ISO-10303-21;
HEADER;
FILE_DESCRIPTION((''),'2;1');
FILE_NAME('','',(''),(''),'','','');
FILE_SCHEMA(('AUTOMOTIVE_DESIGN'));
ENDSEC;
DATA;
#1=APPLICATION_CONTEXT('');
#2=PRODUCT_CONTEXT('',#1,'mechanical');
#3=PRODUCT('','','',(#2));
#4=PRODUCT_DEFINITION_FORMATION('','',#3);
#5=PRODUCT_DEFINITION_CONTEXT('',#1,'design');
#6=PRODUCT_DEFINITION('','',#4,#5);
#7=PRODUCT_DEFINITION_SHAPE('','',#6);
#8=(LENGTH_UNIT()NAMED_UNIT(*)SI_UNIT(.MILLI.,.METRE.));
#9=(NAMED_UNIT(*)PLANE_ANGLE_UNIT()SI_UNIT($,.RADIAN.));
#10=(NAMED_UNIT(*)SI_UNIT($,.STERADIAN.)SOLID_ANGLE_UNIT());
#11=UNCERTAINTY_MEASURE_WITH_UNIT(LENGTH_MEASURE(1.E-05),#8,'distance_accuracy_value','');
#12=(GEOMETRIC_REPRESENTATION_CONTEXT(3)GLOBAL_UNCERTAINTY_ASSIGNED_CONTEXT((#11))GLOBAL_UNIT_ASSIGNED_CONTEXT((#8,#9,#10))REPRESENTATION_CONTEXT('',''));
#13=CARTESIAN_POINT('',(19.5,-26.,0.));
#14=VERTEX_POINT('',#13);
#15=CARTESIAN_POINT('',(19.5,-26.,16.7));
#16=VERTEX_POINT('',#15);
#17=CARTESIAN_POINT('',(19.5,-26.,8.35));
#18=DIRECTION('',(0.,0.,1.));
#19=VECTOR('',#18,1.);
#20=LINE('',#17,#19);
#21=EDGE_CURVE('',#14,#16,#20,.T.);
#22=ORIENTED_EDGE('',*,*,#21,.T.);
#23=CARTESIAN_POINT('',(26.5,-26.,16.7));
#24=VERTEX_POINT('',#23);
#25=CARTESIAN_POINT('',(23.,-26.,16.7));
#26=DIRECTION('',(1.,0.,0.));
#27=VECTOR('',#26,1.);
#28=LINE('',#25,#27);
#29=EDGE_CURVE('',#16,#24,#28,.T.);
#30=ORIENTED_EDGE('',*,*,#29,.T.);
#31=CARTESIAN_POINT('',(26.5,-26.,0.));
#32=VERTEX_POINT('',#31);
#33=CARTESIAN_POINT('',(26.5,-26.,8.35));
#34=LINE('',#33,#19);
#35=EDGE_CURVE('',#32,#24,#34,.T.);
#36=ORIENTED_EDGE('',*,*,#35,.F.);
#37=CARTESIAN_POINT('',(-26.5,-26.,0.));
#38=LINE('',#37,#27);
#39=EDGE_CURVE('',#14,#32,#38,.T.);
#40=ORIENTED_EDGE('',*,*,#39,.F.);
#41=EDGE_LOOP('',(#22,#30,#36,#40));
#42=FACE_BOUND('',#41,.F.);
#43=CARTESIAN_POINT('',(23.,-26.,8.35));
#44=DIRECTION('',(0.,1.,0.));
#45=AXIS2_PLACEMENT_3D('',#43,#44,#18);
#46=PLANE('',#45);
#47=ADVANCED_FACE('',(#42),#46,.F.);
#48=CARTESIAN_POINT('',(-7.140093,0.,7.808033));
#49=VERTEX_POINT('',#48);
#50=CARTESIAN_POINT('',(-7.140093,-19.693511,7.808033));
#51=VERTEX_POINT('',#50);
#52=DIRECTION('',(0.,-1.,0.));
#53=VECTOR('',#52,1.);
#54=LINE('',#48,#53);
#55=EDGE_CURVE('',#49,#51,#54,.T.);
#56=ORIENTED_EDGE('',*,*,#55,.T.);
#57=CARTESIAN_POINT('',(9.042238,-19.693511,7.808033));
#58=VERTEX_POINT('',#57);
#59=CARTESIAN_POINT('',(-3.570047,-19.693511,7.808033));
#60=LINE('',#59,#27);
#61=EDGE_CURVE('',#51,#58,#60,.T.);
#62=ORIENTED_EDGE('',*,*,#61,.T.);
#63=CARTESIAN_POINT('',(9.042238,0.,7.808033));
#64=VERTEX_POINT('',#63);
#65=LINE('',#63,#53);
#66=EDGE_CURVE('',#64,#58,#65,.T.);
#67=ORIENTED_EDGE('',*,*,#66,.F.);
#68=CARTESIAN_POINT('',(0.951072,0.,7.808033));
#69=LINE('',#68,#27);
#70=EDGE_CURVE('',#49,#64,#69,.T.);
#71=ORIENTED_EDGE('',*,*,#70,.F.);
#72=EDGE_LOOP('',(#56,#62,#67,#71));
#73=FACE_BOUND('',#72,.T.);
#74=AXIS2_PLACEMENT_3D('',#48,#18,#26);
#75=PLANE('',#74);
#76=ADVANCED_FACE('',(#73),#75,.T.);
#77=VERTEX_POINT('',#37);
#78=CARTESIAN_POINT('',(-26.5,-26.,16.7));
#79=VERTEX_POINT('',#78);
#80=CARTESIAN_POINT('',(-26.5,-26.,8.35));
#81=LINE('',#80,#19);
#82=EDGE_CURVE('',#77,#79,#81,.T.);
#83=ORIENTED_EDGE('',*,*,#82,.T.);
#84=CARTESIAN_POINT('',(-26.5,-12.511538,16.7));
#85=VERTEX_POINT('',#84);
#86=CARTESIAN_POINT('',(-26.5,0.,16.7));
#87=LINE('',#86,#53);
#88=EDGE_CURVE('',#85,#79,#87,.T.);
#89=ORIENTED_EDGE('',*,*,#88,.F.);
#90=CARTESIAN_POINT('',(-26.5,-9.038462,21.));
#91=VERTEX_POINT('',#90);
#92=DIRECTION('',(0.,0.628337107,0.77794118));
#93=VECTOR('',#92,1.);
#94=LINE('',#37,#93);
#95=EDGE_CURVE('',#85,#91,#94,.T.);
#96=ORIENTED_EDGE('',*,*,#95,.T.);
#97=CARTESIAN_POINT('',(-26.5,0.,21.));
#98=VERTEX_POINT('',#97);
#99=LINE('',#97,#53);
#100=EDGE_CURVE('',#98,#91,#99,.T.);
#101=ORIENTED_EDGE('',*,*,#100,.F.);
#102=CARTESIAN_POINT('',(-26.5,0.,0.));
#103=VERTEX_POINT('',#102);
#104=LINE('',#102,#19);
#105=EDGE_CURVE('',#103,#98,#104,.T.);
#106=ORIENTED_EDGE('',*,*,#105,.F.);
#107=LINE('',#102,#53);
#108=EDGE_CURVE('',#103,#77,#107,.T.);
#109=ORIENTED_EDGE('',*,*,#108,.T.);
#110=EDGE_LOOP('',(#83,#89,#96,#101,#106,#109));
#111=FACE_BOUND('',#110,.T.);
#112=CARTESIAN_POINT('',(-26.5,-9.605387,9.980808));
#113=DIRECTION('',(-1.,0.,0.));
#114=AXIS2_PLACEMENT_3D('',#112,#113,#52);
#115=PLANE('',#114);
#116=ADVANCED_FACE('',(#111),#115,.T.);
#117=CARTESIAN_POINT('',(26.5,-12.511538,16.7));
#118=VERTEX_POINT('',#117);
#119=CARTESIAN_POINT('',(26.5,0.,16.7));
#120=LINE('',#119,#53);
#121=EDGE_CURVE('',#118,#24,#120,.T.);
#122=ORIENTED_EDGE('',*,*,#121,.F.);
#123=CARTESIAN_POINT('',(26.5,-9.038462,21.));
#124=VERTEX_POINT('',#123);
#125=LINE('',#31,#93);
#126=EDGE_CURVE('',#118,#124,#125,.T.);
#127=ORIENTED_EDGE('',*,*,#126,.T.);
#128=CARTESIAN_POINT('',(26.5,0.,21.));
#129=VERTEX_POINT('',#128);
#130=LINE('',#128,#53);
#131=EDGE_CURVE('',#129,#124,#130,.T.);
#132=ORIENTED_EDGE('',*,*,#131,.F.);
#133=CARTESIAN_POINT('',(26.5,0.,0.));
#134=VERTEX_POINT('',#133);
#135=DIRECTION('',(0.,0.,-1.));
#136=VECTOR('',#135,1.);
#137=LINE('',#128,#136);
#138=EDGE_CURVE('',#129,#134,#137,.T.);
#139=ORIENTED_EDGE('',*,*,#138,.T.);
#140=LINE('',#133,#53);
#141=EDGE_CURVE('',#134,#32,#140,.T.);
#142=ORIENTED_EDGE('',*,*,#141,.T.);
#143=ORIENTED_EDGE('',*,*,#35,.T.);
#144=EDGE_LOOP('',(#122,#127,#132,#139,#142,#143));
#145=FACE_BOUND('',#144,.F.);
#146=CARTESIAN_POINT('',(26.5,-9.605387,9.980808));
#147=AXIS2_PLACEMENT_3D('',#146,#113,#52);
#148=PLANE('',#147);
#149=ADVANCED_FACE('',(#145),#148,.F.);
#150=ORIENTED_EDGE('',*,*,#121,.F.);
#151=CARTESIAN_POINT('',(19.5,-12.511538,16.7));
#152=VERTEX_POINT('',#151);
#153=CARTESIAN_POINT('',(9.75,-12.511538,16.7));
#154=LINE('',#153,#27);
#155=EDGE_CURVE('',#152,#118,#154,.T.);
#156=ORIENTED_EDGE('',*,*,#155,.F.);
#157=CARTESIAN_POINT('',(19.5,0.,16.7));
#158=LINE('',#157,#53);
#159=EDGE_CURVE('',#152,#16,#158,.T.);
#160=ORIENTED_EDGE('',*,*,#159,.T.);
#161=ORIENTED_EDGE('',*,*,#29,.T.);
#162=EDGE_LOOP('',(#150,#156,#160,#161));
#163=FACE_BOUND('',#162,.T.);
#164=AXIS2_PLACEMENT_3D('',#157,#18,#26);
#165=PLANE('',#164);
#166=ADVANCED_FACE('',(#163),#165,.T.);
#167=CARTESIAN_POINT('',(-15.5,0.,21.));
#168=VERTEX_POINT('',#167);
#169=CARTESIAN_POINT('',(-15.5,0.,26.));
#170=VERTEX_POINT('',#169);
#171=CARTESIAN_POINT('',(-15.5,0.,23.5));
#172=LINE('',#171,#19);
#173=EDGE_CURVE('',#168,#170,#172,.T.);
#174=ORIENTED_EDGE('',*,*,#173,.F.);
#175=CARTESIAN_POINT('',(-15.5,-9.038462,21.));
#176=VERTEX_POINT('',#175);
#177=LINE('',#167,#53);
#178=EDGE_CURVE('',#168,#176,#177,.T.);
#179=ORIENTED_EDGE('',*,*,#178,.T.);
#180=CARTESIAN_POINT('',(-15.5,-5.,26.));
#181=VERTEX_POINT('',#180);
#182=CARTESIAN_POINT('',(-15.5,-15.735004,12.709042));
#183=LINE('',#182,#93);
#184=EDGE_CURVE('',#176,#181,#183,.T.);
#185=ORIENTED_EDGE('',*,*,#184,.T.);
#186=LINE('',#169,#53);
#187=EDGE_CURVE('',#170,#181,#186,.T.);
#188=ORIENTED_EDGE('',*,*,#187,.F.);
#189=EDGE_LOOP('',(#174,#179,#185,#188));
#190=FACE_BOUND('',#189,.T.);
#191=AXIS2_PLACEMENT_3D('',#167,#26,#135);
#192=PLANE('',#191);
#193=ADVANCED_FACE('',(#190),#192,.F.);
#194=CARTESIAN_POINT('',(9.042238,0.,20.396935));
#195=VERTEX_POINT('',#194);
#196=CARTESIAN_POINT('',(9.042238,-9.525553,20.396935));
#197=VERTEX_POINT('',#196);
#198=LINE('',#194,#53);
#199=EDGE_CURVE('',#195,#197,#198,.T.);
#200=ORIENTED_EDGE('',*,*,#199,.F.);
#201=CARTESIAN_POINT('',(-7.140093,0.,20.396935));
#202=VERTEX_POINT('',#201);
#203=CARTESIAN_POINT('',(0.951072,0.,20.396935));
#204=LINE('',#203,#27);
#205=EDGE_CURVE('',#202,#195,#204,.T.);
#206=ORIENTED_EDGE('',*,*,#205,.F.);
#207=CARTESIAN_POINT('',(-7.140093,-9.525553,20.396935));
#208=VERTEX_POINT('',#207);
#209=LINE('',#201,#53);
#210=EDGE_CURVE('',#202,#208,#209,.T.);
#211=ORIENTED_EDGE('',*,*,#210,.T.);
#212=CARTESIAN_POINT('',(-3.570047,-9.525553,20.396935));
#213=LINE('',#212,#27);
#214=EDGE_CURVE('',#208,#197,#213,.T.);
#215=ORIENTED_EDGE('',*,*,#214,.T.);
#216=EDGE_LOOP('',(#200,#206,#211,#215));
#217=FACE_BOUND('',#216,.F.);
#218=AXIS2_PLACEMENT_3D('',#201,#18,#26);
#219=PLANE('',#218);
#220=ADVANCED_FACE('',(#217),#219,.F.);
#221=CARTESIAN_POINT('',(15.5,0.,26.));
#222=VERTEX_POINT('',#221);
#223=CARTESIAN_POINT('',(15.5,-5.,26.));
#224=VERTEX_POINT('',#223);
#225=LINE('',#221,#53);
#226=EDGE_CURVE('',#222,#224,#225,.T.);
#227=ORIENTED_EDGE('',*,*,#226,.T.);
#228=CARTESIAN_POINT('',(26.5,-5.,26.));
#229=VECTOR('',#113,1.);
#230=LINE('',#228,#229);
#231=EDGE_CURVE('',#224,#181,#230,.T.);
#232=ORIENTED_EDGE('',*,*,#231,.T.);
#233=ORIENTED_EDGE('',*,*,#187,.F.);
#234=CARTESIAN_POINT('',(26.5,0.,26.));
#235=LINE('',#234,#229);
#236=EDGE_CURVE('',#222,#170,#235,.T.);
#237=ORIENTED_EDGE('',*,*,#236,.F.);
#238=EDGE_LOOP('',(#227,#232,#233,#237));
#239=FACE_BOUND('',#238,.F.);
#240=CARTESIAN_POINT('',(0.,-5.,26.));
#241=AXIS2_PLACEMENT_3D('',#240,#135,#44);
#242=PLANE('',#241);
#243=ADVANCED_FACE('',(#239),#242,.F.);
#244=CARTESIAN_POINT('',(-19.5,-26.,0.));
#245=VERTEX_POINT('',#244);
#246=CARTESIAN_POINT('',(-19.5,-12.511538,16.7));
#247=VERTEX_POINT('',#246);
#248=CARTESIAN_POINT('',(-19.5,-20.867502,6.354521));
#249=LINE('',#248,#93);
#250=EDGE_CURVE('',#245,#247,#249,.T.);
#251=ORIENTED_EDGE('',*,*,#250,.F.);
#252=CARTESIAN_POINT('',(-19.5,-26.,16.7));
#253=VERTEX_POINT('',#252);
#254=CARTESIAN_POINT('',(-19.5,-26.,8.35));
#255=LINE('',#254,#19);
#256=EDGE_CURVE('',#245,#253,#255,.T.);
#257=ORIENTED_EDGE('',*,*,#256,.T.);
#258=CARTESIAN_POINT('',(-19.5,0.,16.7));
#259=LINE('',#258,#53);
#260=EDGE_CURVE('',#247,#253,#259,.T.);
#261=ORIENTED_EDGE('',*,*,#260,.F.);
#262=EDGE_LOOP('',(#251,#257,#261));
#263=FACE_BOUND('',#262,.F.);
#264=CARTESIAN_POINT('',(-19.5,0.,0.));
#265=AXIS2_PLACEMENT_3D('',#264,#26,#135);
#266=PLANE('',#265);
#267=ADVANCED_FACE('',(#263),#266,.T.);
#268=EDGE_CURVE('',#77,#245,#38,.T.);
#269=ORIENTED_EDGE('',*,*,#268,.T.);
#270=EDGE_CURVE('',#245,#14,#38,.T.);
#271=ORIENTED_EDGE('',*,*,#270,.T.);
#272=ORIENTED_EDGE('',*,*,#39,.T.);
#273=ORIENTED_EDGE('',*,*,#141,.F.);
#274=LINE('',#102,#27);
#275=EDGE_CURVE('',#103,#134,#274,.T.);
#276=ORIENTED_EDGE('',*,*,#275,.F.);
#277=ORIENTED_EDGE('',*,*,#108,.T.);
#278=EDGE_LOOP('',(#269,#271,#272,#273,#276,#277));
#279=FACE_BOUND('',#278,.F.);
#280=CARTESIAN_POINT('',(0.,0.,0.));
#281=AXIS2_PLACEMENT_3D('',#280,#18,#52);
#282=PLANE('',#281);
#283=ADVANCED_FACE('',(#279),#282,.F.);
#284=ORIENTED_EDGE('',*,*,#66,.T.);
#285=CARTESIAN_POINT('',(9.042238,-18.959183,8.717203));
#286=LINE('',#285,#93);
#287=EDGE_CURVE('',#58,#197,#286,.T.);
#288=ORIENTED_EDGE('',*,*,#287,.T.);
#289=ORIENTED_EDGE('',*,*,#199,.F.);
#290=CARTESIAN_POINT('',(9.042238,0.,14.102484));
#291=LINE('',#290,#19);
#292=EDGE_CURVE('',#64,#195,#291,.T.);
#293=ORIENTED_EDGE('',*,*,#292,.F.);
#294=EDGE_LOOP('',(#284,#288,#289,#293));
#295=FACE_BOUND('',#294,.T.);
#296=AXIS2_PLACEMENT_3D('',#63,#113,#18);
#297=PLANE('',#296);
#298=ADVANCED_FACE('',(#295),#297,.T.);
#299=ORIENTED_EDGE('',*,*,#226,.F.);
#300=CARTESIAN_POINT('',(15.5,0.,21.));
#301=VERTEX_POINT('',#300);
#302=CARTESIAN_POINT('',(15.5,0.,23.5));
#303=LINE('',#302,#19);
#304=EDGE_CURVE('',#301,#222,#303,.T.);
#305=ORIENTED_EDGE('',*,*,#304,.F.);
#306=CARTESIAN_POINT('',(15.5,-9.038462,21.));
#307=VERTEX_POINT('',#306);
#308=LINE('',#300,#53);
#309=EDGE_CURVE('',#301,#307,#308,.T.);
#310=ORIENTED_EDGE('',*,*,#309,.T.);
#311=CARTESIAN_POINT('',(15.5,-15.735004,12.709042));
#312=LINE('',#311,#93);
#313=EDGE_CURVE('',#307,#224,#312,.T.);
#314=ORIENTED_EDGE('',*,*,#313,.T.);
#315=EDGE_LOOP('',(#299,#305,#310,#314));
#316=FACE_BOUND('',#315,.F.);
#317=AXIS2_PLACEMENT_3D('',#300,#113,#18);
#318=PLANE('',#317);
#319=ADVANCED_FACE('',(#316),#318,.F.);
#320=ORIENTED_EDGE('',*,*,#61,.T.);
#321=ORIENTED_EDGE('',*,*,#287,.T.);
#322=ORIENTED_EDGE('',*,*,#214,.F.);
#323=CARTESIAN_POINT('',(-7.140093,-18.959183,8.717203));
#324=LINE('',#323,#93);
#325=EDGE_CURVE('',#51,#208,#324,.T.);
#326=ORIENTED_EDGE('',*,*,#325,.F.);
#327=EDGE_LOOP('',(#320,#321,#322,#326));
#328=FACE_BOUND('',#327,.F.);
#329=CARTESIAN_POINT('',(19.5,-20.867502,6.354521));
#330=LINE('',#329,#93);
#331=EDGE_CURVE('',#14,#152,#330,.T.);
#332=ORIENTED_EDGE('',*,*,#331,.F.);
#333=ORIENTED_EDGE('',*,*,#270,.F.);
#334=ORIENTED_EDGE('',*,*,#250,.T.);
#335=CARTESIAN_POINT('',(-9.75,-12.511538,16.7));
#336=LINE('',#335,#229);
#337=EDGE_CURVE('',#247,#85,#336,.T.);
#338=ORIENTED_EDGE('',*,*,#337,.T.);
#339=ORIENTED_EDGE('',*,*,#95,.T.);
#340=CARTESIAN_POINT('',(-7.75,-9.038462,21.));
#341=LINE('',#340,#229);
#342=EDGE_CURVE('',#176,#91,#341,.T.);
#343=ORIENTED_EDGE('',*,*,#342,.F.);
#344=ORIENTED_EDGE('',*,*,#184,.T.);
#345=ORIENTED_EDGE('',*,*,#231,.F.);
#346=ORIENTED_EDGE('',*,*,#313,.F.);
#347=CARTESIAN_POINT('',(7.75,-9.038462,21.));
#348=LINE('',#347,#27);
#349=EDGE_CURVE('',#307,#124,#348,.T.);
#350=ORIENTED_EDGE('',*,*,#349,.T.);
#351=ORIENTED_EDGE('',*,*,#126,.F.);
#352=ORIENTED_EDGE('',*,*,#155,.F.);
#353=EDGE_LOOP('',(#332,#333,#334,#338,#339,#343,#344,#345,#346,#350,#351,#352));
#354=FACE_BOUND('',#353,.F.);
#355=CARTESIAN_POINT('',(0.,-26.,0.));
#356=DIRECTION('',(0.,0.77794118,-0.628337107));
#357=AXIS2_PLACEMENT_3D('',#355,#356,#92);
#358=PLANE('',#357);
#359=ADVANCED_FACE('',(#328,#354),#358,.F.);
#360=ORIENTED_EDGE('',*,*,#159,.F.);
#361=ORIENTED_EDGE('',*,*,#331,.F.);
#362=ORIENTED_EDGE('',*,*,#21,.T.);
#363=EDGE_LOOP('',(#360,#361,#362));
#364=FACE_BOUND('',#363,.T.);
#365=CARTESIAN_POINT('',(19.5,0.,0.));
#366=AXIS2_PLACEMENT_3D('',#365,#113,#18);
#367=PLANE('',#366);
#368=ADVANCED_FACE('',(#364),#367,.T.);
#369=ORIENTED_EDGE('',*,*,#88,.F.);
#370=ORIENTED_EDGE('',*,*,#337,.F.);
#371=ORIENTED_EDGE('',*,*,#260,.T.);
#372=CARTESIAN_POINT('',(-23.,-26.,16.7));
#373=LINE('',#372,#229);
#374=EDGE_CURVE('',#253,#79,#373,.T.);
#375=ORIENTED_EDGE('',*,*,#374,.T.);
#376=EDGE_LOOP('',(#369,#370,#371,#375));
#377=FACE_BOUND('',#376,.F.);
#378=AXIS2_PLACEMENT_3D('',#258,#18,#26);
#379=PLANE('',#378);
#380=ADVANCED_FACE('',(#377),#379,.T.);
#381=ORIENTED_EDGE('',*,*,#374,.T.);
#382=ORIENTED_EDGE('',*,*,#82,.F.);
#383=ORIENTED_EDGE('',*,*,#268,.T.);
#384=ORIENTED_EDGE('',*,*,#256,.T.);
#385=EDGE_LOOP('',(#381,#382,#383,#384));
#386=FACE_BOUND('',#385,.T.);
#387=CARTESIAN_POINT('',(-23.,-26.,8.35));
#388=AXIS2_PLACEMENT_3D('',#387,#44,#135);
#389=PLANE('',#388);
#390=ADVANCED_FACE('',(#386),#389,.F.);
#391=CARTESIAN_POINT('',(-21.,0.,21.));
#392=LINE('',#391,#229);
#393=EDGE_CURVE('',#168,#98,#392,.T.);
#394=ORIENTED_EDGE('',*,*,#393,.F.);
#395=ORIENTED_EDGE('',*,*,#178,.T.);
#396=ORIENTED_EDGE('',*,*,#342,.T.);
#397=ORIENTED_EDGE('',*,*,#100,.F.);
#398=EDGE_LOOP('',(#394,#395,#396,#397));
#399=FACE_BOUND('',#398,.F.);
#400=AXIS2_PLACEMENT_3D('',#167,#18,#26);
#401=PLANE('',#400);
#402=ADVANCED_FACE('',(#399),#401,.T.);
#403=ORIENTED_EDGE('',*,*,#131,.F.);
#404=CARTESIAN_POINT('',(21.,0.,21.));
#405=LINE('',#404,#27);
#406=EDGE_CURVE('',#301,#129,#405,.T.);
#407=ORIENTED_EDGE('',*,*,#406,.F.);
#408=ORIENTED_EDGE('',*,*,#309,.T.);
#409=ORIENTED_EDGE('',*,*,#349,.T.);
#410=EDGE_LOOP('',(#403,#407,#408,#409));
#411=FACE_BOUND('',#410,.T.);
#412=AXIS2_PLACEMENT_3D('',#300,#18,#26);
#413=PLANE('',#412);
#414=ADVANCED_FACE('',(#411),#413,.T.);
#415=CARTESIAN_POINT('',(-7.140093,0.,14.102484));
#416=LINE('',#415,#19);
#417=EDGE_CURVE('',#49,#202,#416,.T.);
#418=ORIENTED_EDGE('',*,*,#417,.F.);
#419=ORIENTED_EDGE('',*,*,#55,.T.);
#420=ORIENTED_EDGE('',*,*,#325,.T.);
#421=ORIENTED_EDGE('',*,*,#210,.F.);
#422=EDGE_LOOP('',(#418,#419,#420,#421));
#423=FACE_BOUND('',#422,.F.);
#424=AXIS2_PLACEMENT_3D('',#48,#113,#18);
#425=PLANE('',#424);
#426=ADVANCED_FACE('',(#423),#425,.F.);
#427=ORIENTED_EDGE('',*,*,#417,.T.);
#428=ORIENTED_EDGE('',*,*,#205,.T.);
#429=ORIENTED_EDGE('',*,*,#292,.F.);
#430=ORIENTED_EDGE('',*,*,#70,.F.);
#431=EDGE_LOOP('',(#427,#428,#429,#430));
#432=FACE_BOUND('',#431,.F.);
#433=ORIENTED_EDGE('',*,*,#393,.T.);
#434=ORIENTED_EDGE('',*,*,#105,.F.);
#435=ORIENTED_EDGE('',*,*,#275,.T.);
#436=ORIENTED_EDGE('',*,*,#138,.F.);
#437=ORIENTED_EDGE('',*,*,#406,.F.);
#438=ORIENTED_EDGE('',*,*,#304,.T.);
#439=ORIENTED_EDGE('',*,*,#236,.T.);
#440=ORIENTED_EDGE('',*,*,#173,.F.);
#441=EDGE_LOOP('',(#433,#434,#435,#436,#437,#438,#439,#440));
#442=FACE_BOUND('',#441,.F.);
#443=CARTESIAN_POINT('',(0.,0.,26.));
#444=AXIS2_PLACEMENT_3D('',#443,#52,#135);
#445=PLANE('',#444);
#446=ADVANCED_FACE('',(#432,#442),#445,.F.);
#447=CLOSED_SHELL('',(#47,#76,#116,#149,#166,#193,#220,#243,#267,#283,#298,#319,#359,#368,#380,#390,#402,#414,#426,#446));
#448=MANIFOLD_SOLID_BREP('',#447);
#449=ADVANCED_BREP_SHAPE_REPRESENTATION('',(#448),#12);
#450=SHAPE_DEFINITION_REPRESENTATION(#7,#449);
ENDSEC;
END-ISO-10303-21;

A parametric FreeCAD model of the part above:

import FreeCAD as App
import Part
import Sketcher
Q = App.Units.Quantity

doc = App.newDocument("Part")
body = doc.addObject("PartDesign::Body", "Body")

# Sketch on YZ plane
sketch1 = body.newObject("Sketcher::SketchObject", "Sketch")
sketch1.AttachmentSupport = (doc.getObject("YZ_Plane"), [""])
sketch1.MapMode = "FlatFace"
sketch1.addGeometry([
    Part.LineSegment(App.Vector(-5, 26, 0), App.Vector(-26, 0, 0)),
    Part.LineSegment(App.Vector(-26, 0, 0), App.Vector(0, 0, 0)),
    Part.LineSegment(App.Vector(0, 0, 0), App.Vector(0, 26, 0)),
    Part.LineSegment(App.Vector(0, 26, 0), App.Vector(-5, 26, 0)),
], False)
sketch1.addConstraint([
    Sketcher.Constraint("Coincident", 0, 2, 1, 1),
    Sketcher.Constraint("Coincident", 1, 2, 2, 1),
    Sketcher.Constraint("Coincident", 2, 2, 3, 1),
    Sketcher.Constraint("Coincident", 3, 2, 0, 1),
    Sketcher.Constraint("Horizontal", 1),
    Sketcher.Constraint("Vertical", 2),
    Sketcher.Constraint("Horizontal", 3),
    Sketcher.Constraint("Coincident", 1, 2, -1, 1),
    Sketcher.Constraint("Equal", 1, 2),
    Sketcher.Constraint("DistanceX", 1, 1, 1, 2, Q("26 mm")),
    Sketcher.Constraint("DistanceX", 3, 2, 3, 1, Q("5 mm")),
])
pad1 = body.newObject("PartDesign::Pad", "Pad")
pad1.Profile = sketch1
pad1.Type = "TwoLengths"
pad1.Length = 26.5
pad1.Length2 = 26.5

# Sketch on XZ plane
sketch2 = body.newObject("Sketcher::SketchObject", "Sketch001")
sketch2.AttachmentSupport = (doc.getObject("XZ_Plane"), [""])
sketch2.MapMode = "FlatFace"
sketch2.addGeometry([
    Part.LineSegment(App.Vector(26, 21, 0), App.Vector(16, 21, 0)),
    Part.LineSegment(App.Vector(16, 21, 0), App.Vector(16, 26, 0)),
    Part.LineSegment(App.Vector(16, 26, 0), App.Vector(26, 26, 0)),
    Part.LineSegment(App.Vector(26, 26, 0), App.Vector(26, 21, 0)),
], False)
sketch2.addConstraint([
    Sketcher.Constraint("Coincident", 0, 2, 1, 1),
    Sketcher.Constraint("Coincident", 1, 2, 2, 1),
    Sketcher.Constraint("Coincident", 2, 2, 3, 1),
    Sketcher.Constraint("Coincident", 3, 2, 0, 1),
    Sketcher.Constraint("Horizontal", 0),
    Sketcher.Constraint("Vertical", 1),
    Sketcher.Constraint("Horizontal", 2),
    Sketcher.Constraint("Vertical", 3),
    Sketcher.Constraint("DistanceX", 0, 2, 0, 1, Q("11 mm")),
    Sketcher.Constraint("DistanceY", 1, 1, 1, 2, Q("5 mm")),
    Sketcher.Constraint("DistanceY", -1, 1, 0, 2, Q("21 mm")),
    Sketcher.Constraint("DistanceX", -1, 1, 0, 2, Q("15.5 mm")),
])
pocket1 = body.newObject("PartDesign::Pocket", "Pocket")
pocket1.Profile = sketch2
pocket1.Type = "ThroughAll"
pocket1.Reversed = True
doc.recompute()

mirrored = body.newObject("PartDesign::Mirrored", "Mirrored")
mirrored.Originals = [pocket1]
mirrored.MirrorPlane = (doc.getObject("YZ_Plane"), [""])
body.Tip = mirrored

# Sketch on XZ plane
sketch3 = body.newObject("Sketcher::SketchObject", "Sketch002")
sketch3.AttachmentSupport = (doc.getObject("XZ_Plane"), [""])
sketch3.MapMode = "FlatFace"
sketch3.addGeometry([
    Part.LineSegment(App.Vector(26, 0, 0), App.Vector(20, 0, 0)),
    Part.LineSegment(App.Vector(20, 0, 0), App.Vector(20, 17, 0)),
    Part.LineSegment(App.Vector(20, 17, 0), App.Vector(26, 17, 0)),
    Part.LineSegment(App.Vector(26, 17, 0), App.Vector(26, 0, 0)),
], False)
sketch3.addConstraint([
    Sketcher.Constraint("Coincident", 0, 2, 1, 1),
    Sketcher.Constraint("Coincident", 1, 2, 2, 1),
    Sketcher.Constraint("Coincident", 2, 2, 3, 1),
    Sketcher.Constraint("Coincident", 3, 2, 0, 1),
    Sketcher.Constraint("Horizontal", 0),
    Sketcher.Constraint("Vertical", 1),
    Sketcher.Constraint("Horizontal", 2),
    Sketcher.Constraint("Vertical", 3),
    Sketcher.Constraint("PointOnObject", 0, 2, -1),
    Sketcher.Constraint("DistanceX", 0, 2, 0, 1, Q("7 mm")),
    Sketcher.Constraint("DistanceY", 1, 1, 1, 2, Q("16.7 mm")),
    Sketcher.Constraint("DistanceX", -1, 1, 0, 2, Q("19.5 mm")),
])
pad2 = body.newObject("PartDesign::Pad", "Pad001")
pad2.Profile = sketch3
pad2.Length = 26
doc.recompute()

mirrored2 = body.newObject("PartDesign::Mirrored", "Mirrored001")
mirrored2.Originals = [pad2]
mirrored2.MirrorPlane = (doc.getObject("YZ_Plane"), [""])
body.Tip = mirrored2

# Sketch on XZ plane
sketch4 = body.newObject("Sketcher::SketchObject", "Sketch003")
sketch4.AttachmentSupport = (doc.getObject("XZ_Plane"), [""])
sketch4.MapMode = "FlatFace"
sketch4.addGeometry([
    Part.LineSegment(App.Vector(9, 8, 0), App.Vector(-7, 8, 0)),
    Part.LineSegment(App.Vector(-7, 8, 0), App.Vector(-7, 20, 0)),
    Part.LineSegment(App.Vector(-7, 20, 0), App.Vector(9, 20, 0)),
    Part.LineSegment(App.Vector(9, 20, 0), App.Vector(9, 8, 0)),
], False)
sketch4.addConstraint([
    Sketcher.Constraint("Coincident", 0, 2, 1, 1),
    Sketcher.Constraint("Coincident", 1, 2, 2, 1),
    Sketcher.Constraint("Coincident", 2, 2, 3, 1),
    Sketcher.Constraint("Coincident", 3, 2, 0, 1),
    Sketcher.Constraint("Horizontal", 0),
    Sketcher.Constraint("Vertical", 1),
    Sketcher.Constraint("Horizontal", 2),
    Sketcher.Constraint("Vertical", 3),
    Sketcher.Constraint("DistanceY", 1, 1, 1, 2, Q("12.588901 mm")),
    Sketcher.Constraint("DistanceX", 0, 2, 0, 1, Q("16.182331 mm")),
    Sketcher.Constraint("DistanceX", 0, 2, -1, 1, Q("7.140093 mm")),
    Sketcher.Constraint("DistanceY", -1, 1, 0, 2, Q("7.808033 mm")),
])
pocket2 = body.newObject("PartDesign::Pocket", "Pocket001")
pocket2.Profile = sketch4
pocket2.Type = "ThroughAll"
pocket2.Reversed = True

doc.recompute()
